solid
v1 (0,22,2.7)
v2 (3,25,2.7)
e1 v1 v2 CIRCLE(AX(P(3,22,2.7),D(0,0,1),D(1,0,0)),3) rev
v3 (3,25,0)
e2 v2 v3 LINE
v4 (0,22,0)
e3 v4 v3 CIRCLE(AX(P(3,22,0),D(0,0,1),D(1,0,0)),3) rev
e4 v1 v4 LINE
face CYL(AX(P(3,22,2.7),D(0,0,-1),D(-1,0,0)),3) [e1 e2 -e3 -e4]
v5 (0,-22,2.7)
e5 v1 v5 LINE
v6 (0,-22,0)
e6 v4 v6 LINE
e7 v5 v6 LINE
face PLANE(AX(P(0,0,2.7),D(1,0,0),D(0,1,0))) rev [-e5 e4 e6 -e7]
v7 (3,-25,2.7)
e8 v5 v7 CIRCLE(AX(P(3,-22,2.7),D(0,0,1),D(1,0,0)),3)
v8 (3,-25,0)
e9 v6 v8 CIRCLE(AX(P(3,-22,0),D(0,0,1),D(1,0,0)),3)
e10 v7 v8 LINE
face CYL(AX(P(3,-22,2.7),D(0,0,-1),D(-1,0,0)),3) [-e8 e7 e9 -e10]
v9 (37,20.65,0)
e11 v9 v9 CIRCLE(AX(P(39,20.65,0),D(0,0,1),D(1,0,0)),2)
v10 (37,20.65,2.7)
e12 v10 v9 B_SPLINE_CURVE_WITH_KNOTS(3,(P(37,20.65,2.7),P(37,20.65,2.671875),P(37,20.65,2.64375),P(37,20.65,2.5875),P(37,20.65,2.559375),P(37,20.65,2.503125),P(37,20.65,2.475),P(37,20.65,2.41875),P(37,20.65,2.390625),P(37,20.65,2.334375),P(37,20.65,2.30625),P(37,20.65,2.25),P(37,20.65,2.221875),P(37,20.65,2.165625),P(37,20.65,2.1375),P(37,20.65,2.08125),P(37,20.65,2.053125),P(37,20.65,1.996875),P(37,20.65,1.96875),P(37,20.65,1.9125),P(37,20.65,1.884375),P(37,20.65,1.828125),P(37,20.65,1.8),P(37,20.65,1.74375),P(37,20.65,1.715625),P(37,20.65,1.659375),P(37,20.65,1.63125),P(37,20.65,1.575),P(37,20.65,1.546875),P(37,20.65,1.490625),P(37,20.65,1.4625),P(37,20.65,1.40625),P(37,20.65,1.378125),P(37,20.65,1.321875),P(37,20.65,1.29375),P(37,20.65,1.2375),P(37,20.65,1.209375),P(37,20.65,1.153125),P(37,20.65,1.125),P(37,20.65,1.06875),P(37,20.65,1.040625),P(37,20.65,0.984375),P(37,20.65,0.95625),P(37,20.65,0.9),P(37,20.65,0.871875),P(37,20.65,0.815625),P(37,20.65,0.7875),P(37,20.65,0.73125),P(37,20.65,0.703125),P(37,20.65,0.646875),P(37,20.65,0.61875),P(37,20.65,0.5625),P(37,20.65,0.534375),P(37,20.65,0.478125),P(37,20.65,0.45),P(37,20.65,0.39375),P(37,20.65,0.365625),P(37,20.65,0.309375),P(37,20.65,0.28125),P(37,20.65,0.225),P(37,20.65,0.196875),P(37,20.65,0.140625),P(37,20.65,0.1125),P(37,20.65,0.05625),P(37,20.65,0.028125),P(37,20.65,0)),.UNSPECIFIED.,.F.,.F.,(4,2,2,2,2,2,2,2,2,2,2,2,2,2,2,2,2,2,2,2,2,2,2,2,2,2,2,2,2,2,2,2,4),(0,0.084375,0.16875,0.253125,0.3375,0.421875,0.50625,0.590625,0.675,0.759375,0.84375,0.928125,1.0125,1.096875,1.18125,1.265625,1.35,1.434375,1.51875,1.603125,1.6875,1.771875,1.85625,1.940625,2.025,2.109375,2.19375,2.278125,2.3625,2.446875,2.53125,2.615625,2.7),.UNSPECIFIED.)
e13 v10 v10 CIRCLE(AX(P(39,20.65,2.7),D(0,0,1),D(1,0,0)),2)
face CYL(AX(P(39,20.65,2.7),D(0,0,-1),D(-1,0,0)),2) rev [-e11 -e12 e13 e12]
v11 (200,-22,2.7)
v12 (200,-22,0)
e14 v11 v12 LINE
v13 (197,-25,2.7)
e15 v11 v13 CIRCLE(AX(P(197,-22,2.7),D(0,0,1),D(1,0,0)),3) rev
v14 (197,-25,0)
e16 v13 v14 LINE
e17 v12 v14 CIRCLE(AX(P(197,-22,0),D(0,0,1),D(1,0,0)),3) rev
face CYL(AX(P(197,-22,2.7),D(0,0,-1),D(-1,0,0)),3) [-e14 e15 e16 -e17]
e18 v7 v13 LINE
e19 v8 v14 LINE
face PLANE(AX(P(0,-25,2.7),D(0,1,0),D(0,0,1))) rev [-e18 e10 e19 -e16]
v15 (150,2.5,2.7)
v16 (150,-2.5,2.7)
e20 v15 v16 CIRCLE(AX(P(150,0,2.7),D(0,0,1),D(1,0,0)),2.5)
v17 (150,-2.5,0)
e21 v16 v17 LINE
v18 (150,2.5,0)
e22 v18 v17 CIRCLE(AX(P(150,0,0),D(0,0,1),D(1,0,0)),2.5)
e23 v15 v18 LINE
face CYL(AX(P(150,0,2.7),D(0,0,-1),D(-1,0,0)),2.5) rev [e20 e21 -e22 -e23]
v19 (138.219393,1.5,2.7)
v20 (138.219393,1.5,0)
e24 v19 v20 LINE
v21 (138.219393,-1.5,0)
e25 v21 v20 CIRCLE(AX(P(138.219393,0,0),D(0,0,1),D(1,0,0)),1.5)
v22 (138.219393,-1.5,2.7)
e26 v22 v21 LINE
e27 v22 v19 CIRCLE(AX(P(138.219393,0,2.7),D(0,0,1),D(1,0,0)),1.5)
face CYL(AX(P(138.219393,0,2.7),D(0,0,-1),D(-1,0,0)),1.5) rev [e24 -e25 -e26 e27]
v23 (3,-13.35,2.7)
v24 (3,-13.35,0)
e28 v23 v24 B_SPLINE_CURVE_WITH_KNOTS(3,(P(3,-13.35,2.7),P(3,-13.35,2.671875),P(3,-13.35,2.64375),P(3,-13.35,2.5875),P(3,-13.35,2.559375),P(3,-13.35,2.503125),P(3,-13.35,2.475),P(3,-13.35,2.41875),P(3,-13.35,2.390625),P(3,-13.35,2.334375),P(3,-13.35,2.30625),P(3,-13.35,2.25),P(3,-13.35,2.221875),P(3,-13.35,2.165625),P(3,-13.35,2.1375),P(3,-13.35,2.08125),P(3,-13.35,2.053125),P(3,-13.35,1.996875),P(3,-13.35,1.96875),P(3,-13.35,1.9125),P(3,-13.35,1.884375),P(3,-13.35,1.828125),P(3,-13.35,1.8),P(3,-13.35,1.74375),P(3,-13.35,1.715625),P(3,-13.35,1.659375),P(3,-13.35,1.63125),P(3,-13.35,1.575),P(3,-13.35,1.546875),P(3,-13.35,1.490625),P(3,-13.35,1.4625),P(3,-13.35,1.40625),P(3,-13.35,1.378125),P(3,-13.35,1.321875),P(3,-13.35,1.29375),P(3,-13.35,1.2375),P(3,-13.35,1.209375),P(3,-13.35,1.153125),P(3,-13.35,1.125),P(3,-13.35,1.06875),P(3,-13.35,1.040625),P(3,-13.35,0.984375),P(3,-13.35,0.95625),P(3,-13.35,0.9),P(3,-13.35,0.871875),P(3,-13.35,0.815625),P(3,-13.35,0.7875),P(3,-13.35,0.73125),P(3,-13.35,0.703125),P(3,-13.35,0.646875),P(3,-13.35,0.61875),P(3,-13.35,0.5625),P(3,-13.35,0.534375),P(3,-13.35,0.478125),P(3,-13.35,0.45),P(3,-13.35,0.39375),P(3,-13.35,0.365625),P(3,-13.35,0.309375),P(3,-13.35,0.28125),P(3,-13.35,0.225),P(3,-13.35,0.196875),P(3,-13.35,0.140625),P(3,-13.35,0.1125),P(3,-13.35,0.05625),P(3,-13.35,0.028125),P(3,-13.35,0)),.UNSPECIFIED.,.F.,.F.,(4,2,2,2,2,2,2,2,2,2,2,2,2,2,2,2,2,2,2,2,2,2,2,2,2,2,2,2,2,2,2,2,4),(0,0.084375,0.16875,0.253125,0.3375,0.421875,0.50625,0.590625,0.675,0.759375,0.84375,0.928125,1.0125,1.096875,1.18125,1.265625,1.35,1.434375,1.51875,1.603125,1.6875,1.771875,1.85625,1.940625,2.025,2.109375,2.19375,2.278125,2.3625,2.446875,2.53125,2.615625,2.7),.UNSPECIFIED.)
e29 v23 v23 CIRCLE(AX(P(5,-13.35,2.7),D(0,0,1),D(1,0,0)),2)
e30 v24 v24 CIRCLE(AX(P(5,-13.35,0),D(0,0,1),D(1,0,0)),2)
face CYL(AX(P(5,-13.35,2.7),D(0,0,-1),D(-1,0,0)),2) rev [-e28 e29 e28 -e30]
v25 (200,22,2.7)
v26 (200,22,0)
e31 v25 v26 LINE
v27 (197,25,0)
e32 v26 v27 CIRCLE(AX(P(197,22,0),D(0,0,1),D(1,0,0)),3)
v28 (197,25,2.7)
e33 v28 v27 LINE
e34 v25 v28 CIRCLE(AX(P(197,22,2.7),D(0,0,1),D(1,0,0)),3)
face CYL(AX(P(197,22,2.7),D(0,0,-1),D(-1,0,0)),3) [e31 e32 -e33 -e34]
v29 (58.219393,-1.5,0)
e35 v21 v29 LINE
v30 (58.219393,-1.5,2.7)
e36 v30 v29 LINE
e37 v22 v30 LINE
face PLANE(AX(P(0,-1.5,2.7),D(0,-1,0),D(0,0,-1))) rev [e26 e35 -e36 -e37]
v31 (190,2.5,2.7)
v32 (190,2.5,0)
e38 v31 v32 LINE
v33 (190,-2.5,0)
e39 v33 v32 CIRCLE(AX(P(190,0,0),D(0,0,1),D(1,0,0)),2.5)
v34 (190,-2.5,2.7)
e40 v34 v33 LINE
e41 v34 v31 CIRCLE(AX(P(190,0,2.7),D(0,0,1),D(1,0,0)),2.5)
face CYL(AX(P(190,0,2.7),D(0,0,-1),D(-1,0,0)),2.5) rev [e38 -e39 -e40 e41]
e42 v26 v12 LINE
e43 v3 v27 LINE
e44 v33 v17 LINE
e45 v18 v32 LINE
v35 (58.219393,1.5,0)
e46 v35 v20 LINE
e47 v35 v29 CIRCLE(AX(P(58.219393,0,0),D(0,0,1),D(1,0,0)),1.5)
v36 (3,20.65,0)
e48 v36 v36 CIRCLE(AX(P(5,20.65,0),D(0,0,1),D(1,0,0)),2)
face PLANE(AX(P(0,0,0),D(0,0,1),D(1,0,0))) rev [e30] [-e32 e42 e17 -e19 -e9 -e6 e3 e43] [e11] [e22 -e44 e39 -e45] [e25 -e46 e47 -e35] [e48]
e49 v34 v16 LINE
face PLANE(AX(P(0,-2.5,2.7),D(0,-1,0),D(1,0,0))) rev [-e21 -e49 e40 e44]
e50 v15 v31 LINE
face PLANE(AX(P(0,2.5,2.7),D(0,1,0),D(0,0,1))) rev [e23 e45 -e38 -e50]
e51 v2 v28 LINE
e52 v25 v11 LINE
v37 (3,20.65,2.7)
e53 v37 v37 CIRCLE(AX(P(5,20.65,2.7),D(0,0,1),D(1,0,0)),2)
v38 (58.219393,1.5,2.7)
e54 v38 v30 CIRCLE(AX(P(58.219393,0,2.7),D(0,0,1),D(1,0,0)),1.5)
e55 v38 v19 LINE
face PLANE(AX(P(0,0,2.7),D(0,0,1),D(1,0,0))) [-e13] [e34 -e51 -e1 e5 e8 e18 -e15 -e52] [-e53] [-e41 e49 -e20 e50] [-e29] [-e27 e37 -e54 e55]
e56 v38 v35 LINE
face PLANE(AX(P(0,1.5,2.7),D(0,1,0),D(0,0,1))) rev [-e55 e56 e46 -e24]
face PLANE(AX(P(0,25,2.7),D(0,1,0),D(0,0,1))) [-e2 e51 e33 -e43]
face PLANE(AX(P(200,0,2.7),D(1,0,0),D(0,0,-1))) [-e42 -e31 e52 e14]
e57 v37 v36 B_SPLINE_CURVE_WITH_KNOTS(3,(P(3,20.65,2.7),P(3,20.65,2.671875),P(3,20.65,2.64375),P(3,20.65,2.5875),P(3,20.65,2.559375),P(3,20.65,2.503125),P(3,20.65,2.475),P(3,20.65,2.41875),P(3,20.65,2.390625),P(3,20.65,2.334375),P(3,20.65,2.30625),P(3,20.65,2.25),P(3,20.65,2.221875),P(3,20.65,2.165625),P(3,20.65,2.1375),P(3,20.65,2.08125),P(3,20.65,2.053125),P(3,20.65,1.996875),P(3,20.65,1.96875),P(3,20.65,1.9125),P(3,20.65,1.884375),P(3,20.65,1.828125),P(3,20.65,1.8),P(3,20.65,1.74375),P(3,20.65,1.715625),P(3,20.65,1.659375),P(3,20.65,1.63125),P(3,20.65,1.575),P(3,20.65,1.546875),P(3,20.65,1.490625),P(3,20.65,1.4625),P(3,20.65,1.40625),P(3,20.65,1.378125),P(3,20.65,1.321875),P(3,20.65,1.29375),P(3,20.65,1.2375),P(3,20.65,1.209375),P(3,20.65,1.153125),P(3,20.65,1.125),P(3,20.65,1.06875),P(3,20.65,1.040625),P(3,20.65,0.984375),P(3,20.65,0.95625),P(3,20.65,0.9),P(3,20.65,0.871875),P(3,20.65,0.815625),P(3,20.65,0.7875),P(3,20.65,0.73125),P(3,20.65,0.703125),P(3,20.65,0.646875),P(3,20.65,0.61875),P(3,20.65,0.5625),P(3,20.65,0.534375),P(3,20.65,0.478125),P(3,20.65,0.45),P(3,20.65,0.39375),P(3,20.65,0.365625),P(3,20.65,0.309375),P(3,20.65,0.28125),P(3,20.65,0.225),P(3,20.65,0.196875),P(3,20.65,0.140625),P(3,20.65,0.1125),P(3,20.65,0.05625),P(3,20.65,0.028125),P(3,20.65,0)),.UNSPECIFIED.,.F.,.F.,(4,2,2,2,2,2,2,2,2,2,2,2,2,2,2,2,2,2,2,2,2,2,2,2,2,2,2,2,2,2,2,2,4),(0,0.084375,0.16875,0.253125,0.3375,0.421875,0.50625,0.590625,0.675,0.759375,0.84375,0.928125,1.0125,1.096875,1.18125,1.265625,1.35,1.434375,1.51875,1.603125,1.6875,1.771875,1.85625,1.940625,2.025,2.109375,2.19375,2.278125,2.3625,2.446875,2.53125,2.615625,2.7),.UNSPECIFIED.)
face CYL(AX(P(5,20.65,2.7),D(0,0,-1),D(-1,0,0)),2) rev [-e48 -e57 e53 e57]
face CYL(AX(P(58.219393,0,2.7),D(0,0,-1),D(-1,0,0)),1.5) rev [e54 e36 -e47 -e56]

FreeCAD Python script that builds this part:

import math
import FreeCAD as App
import Part
import Sketcher

V = App.Vector
Q = App.Units.Quantity

doc = App.newDocument("Part")
body = doc.addObject("PartDesign::Body", "Body")

# Sketch on XY plane
sketch1 = body.newObject("Sketcher::SketchObject", "Sketch")
sketch1.AttachmentSupport = (doc.getObject("XY_Plane"), [""])
sketch1.MapMode = "FlatFace"
sketch1.addGeometry(Part.LineSegment(V(0, 22, 0), V(0, -22, 0)), False)
sketch1.addGeometry(Part.ArcOfCircle(Part.Circle(V(3, -22, 0), V(0, 0, 1), 3), math.radians(180), math.radians(270)), False)
sketch1.addGeometry(Part.LineSegment(V(3, -25, 0), V(197, -25, 0)), False)
sketch1.addGeometry(Part.ArcOfCircle(Part.Circle(V(197, -22, 0), V(0, 0, 1), 3), math.radians(-90), math.radians(0)), False)
sketch1.addGeometry(Part.LineSegment(V(200, -22, 0), V(200, 22, 0)), False)
sketch1.addGeometry(Part.ArcOfCircle(Part.Circle(V(197, 22, 0), V(0, 0, 1), 3), math.radians(0), math.radians(90)), False)
sketch1.addGeometry(Part.LineSegment(V(197, 25, 0), V(3, 25, 0)), False)
sketch1.addGeometry(Part.ArcOfCircle(Part.Circle(V(3, 22, 0), V(0, 0, 1), 3), math.radians(90), math.radians(180)), False)
sketch1.addGeometry(Part.Circle(V(5, -13.3, 0), V(0, 0, 1), 2), False)
sketch1.addGeometry(Part.ArcOfCircle(Part.Circle(V(58.2, 0, 0), V(0, 0, 1), 1.5), math.radians(90), math.radians(270)), False)
sketch1.addGeometry(Part.LineSegment(V(58.2, 1.5, 0), V(138.2, 1.5, 0)), False)
sketch1.addGeometry(Part.ArcOfCircle(Part.Circle(V(138.2, 0, 0), V(0, 0, 1), 1.5), math.radians(-90), math.radians(90)), False)
sketch1.addGeometry(Part.LineSegment(V(138.2, -1.5, 0), V(58.2, -1.5, 0)), False)
sketch1.addGeometry(Part.ArcOfCircle(Part.Circle(V(150, 0, 0), V(0, 0, 1), 2.5), math.radians(90), math.radians(270)), False)
sketch1.addGeometry(Part.LineSegment(V(150, 2.5, 0), V(190, 2.5, 0)), False)
sketch1.addGeometry(Part.ArcOfCircle(Part.Circle(V(190, 0, 0), V(0, 0, 1), 2.5), math.radians(-90), math.radians(90)), False)
sketch1.addGeometry(Part.LineSegment(V(190, -2.5, 0), V(150, -2.5, 0)), False)
sketch1.addGeometry(Part.Circle(V(5, 20.6, 0), V(0, 0, 1), 2), False)
sketch1.addGeometry(Part.Circle(V(39, 20.6, 0), V(0, 0, 1), 2), False)
sketch1.addConstraint(Sketcher.Constraint("Tangent", 0, 2, 1, 1))
sketch1.addConstraint(Sketcher.Constraint("Tangent", 1, 2, 2, 1))
sketch1.addConstraint(Sketcher.Constraint("Tangent", 2, 2, 3, 1))
sketch1.addConstraint(Sketcher.Constraint("Tangent", 3, 2, 4, 1))
sketch1.addConstraint(Sketcher.Constraint("Tangent", 4, 2, 5, 1))
sketch1.addConstraint(Sketcher.Constraint("Tangent", 5, 2, 6, 1))
sketch1.addConstraint(Sketcher.Constraint("Tangent", 6, 2, 7, 1))
sketch1.addConstraint(Sketcher.Constraint("Tangent", 7, 2, 0, 1))
sketch1.addConstraint(Sketcher.Constraint("Tangent", 9, 1, 10, 1))
sketch1.addConstraint(Sketcher.Constraint("Tangent", 10, 2, 11, 2))
sketch1.addConstraint(Sketcher.Constraint("Tangent", 11, 1, 12, 1))
sketch1.addConstraint(Sketcher.Constraint("Tangent", 12, 2, 9, 2))
sketch1.addConstraint(Sketcher.Constraint("Tangent", 13, 1, 14, 1))
sketch1.addConstraint(Sketcher.Constraint("Tangent", 14, 2, 15, 2))
sketch1.addConstraint(Sketcher.Constraint("Tangent", 15, 1, 16, 1))
sketch1.addConstraint(Sketcher.Constraint("Tangent", 16, 2, 13, 2))
sketch1.addConstraint(Sketcher.Constraint("Vertical", 0))
sketch1.addConstraint(Sketcher.Constraint("Horizontal", 2))
sketch1.addConstraint(Sketcher.Constraint("Vertical", 4))
sketch1.addConstraint(Sketcher.Constraint("Horizontal", 6))
sketch1.addConstraint(Sketcher.Constraint("Horizontal", 10))
sketch1.addConstraint(Sketcher.Constraint("Horizontal", 12))
sketch1.addConstraint(Sketcher.Constraint("Horizontal", 14))
sketch1.addConstraint(Sketcher.Constraint("Horizontal", 16))
sketch1.addConstraint(Sketcher.Constraint("Equal", 1, 3))
sketch1.addConstraint(Sketcher.Constraint("Equal", 3, 5))
sketch1.addConstraint(Sketcher.Constraint("Equal", 5, 7))
sketch1.addConstraint(Sketcher.Constraint("Equal", 8, 17))
sketch1.addConstraint(Sketcher.Constraint("Equal", 17, 18))
sketch1.addConstraint(Sketcher.Constraint("Symmetric", 0, 2, 7, 2, -1, 1))
sketch1.addConstraint(Sketcher.Constraint("PointOnObject", 9, 3, -1))
sketch1.addConstraint(Sketcher.Constraint("PointOnObject", 13, 3, -1))
sketch1.addConstraint(Sketcher.Constraint("Horizontal", 17, 3, 18, 3))
sketch1.addConstraint(Sketcher.Constraint("Vertical", 8, 3, 17, 3))
sketch1.addConstraint(Sketcher.Constraint("Diameter", 8, Q("4 mm")))
sketch1.addConstraint(Sketcher.Constraint("Radius", 1, Q("3 mm")))
sketch1.addConstraint(Sketcher.Constraint("Radius", 9, Q("1.5 mm")))
sketch1.addConstraint(Sketcher.Constraint("Radius", 13, Q("2.5 mm")))
sketch1.addConstraint(Sketcher.Constraint("DistanceX", 2, 1, 2, 2, Q("194 mm")))
sketch1.addConstraint(Sketcher.Constraint("DistanceX", 10, 1, 10, 2, Q("80 mm")))
sketch1.addConstraint(Sketcher.Constraint("DistanceX", 14, 1, 14, 2, Q("40 mm")))
sketch1.addConstraint(Sketcher.Constraint("DistanceY", 0, 2, 0, 1, Q("44 mm")))
sketch1.addConstraint(Sketcher.Constraint("DistanceX", -1, 1, 8, 3, Q("5 mm")))
sketch1.addConstraint(Sketcher.Constraint("DistanceX", -1, 1, 13, 3, Q("150 mm")))
sketch1.addConstraint(Sketcher.Constraint("DistanceX", -1, 1, 18, 3, Q("39 mm")))
sketch1.addConstraint(Sketcher.Constraint("DistanceY", 8, 3, 17, 3, Q("34 mm")))
sketch1.addConstraint(Sketcher.Constraint("DistanceY", 8, 3, -1, 1, Q("13.35 mm")))
sketch1.addConstraint(Sketcher.Constraint("DistanceX", -1, 1, 9, 3, Q("58.219393 mm")))
pad1 = body.newObject("PartDesign::Pad", "Pad")
pad1.Profile = sketch1
pad1.Length = 2.7

doc.recompute()
